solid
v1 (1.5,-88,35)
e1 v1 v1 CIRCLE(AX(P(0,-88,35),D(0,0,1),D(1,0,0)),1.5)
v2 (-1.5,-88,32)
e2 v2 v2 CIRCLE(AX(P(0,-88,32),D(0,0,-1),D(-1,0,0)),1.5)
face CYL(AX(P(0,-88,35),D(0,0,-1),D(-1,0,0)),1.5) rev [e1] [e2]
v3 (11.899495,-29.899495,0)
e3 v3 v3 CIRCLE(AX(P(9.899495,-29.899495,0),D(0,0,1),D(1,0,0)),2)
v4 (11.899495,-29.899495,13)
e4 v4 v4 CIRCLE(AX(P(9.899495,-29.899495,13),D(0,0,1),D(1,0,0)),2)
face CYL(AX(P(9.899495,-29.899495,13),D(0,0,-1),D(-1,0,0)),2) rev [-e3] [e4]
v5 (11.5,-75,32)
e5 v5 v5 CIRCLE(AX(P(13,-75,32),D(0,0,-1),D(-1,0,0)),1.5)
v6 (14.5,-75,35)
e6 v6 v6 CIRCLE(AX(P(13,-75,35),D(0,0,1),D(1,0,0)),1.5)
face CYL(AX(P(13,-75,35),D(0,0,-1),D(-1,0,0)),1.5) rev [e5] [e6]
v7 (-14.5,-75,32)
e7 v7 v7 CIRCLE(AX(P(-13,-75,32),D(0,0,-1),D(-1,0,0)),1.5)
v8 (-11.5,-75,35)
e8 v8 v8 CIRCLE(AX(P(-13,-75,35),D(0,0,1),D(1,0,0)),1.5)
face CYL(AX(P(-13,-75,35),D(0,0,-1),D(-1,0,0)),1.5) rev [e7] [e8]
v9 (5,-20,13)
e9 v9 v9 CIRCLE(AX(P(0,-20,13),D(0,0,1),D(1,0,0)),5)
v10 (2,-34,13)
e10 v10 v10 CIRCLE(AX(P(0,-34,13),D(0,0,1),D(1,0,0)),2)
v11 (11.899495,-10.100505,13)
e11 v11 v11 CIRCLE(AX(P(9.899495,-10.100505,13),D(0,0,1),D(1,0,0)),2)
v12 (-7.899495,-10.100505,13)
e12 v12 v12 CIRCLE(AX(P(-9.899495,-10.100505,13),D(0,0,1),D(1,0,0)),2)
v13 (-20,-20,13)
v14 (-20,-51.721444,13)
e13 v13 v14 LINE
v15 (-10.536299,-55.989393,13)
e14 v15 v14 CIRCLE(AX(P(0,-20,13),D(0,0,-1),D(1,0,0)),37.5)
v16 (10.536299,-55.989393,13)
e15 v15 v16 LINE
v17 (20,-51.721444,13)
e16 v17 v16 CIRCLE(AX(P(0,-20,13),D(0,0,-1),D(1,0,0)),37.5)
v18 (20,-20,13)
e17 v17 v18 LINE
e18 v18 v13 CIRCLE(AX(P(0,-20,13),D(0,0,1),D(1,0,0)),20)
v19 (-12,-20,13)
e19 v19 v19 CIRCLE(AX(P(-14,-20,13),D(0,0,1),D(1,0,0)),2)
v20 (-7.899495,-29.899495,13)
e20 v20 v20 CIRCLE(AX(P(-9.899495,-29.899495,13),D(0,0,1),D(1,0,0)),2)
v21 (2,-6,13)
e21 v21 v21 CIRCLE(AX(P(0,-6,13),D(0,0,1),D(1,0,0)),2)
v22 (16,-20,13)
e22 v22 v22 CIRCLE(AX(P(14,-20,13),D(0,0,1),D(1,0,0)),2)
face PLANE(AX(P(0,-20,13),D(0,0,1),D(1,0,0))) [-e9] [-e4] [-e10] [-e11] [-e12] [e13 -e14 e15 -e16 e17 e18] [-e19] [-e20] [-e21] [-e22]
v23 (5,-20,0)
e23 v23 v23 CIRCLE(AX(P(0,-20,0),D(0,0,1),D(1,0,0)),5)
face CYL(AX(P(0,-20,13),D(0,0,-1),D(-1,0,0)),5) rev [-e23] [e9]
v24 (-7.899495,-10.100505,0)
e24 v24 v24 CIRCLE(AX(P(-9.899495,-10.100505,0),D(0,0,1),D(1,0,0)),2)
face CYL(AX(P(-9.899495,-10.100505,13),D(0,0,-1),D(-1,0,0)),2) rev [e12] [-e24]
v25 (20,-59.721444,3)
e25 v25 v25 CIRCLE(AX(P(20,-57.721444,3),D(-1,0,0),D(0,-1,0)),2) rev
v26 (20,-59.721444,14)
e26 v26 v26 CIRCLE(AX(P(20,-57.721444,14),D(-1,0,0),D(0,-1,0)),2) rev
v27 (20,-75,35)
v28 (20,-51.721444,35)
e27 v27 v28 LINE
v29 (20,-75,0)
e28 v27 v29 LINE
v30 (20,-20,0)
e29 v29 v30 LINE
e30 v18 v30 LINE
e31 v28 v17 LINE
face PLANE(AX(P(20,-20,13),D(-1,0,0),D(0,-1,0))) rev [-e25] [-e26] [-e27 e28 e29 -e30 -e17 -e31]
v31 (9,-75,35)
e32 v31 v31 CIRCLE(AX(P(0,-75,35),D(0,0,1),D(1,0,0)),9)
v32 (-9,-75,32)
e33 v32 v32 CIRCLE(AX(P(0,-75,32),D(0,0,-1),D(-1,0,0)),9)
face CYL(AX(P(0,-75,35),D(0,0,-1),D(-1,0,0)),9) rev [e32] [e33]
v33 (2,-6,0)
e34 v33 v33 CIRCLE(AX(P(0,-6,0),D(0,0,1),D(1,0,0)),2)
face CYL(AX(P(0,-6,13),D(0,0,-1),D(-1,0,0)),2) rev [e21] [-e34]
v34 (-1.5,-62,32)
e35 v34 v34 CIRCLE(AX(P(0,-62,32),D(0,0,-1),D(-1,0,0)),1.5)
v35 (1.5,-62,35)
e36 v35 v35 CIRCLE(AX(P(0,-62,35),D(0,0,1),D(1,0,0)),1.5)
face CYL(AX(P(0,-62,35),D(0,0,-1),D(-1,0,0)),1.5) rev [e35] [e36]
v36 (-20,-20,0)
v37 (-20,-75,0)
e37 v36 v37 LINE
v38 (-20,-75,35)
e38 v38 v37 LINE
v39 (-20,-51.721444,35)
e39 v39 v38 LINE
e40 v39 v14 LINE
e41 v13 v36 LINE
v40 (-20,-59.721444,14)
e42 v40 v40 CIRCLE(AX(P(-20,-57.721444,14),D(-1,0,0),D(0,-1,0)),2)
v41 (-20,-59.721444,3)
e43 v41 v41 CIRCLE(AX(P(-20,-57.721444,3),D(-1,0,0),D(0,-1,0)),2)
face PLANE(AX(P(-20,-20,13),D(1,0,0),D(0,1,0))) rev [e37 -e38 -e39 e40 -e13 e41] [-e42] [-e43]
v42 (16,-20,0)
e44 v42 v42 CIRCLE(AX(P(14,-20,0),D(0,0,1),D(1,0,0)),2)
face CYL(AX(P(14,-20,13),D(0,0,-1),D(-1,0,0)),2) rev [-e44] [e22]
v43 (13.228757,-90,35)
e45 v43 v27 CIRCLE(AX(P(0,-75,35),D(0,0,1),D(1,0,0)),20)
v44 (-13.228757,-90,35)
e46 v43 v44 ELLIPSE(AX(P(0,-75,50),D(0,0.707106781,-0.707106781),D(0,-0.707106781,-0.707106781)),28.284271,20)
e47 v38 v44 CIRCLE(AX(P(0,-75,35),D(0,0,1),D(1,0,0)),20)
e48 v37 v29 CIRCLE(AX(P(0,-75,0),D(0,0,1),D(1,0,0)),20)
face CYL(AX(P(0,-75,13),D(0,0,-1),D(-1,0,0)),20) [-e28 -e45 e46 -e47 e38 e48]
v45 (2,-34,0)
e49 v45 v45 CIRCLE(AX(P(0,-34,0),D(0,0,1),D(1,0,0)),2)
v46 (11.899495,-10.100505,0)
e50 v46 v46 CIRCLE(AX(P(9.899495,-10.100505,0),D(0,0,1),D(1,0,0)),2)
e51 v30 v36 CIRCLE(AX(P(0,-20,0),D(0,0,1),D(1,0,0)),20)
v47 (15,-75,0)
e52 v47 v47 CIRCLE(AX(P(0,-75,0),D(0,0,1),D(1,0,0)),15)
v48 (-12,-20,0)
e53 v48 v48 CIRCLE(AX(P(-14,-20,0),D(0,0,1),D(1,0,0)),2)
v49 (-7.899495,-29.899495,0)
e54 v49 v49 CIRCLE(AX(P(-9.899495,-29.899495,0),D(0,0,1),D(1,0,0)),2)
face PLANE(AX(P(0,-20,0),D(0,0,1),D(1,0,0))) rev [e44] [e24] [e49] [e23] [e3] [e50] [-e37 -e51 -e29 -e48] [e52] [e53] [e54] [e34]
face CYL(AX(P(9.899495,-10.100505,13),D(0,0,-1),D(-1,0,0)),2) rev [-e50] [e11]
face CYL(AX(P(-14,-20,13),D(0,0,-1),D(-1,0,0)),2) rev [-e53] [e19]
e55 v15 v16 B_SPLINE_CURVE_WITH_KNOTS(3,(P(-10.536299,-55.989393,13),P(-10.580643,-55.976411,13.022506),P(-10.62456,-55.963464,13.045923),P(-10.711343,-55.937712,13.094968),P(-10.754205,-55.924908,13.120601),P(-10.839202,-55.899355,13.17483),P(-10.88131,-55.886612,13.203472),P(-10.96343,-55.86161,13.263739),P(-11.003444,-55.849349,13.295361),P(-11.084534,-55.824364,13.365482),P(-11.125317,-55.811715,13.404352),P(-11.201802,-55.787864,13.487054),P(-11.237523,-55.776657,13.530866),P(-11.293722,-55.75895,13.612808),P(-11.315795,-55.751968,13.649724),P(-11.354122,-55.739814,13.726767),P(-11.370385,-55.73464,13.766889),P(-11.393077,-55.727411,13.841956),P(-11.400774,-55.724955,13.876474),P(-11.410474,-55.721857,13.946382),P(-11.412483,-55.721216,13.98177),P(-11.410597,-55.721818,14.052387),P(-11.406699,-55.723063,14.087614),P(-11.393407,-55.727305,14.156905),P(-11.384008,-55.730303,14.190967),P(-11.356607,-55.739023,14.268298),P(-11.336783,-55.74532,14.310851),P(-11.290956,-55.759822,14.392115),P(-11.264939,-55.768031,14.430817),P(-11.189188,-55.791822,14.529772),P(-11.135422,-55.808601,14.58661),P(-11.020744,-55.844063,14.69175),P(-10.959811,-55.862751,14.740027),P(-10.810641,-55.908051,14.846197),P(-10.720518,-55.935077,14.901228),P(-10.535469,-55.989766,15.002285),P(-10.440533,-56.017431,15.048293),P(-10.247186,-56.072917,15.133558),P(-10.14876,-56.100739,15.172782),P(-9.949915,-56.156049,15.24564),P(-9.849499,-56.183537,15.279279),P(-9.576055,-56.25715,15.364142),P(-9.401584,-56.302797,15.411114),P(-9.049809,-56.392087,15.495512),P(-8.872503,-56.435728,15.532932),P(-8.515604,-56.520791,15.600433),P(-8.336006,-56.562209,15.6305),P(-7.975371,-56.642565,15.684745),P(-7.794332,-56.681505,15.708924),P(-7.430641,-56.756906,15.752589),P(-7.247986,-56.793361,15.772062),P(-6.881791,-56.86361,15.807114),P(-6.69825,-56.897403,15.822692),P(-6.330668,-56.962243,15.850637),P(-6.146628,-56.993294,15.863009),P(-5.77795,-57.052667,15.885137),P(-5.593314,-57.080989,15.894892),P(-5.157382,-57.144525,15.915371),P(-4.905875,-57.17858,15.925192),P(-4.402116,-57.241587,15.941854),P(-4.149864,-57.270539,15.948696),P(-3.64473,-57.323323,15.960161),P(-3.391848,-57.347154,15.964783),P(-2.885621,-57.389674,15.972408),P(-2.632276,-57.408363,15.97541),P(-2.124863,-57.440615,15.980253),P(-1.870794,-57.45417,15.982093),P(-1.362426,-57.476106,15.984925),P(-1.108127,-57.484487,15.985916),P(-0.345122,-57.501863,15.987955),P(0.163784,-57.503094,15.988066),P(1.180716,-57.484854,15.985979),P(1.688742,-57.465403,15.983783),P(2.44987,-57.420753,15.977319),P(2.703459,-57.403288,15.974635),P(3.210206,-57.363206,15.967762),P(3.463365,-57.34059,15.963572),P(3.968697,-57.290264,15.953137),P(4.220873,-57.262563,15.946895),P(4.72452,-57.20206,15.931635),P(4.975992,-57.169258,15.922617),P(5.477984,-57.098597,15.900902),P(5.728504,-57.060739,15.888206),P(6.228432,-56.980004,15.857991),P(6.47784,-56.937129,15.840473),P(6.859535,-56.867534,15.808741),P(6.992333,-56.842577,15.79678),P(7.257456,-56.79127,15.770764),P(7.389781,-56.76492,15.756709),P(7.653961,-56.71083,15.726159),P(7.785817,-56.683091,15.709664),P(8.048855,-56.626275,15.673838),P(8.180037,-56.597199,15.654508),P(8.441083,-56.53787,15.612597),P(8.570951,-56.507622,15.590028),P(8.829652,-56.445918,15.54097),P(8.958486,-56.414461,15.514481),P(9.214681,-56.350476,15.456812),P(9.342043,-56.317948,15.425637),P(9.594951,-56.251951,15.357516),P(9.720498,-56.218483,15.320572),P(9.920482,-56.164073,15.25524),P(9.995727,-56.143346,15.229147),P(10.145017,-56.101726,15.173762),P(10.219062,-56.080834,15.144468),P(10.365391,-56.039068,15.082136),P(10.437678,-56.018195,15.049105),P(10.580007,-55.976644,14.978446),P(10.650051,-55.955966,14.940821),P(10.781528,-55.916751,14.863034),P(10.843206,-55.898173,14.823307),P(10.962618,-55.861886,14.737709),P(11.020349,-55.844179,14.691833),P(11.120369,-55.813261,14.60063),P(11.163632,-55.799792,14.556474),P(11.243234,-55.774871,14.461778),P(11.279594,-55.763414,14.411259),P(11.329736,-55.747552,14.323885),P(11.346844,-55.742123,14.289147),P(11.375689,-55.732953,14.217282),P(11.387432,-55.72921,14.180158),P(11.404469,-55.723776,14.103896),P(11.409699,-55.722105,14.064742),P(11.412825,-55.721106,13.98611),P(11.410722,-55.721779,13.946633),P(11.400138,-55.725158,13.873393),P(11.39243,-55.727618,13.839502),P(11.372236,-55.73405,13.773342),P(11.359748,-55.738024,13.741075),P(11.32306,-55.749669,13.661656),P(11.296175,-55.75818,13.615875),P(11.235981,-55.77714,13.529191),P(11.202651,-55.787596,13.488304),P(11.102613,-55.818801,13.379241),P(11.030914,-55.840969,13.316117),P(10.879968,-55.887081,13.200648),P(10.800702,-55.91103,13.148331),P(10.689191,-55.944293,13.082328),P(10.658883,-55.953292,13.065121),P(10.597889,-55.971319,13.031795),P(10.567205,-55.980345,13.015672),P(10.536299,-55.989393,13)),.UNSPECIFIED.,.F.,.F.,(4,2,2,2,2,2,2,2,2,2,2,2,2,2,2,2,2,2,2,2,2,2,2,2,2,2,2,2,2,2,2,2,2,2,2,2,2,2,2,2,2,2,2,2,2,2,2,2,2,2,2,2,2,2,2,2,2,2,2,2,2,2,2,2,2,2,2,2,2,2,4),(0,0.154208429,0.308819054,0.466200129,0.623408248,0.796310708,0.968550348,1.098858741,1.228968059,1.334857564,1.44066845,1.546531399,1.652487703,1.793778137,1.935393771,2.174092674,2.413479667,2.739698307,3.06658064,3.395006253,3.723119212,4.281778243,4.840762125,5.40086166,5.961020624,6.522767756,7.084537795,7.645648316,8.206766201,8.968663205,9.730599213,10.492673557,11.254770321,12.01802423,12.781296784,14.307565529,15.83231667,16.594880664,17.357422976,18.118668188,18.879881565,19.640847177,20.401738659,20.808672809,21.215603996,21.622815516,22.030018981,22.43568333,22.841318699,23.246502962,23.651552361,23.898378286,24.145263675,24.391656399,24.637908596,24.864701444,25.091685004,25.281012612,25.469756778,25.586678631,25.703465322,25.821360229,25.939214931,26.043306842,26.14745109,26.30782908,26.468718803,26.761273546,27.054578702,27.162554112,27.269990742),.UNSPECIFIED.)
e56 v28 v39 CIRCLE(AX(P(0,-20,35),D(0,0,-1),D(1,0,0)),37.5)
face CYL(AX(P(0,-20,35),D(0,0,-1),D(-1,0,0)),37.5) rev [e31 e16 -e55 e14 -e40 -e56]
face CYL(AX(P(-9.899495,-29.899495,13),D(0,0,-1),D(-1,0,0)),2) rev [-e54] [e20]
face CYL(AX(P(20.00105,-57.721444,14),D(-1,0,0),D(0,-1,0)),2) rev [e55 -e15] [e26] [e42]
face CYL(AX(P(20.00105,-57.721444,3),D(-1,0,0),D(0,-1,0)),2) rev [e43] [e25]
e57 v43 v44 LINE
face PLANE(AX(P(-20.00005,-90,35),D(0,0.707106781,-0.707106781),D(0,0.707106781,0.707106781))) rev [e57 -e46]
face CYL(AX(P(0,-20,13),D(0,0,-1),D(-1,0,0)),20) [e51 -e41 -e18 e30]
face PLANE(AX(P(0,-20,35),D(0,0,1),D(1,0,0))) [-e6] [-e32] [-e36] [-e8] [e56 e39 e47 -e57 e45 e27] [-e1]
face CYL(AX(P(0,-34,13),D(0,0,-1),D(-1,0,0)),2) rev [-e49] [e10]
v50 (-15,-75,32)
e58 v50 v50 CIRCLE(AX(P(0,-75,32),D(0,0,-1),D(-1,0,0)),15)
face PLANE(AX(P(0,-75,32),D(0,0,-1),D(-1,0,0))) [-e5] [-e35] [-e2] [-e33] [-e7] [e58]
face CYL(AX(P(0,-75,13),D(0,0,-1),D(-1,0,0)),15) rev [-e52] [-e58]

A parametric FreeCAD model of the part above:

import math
import FreeCAD as App
import Part
import Sketcher

V = App.Vector
Q = App.Units.Quantity


def add_polygon(sketch, points):
    """Adds a closed chain of lines whose ends are joined by coincident constraints."""
    first, n = sketch.GeometryCount, len(points)
    for a, b in zip(points, points[1:] + points[:1]):
        sketch.addGeometry(Part.LineSegment(App.Vector(*a, 0), App.Vector(*b, 0)), False)
    for i in range(n):
        sketch.addConstraint(Sketcher.Constraint("Coincident", first + i, 2, first + (i + 1) % n, 1))

doc = App.newDocument("Part")
params = doc.addObject("Spreadsheet::Sheet", "Params")
for row, (alias, value) in enumerate([
    ("sketch1_diameter", "30 mm"),
    ("sketch1_diameter2", "4 mm"),
    ("sketch1_diameter3", "10 mm"),
    ("sketch1_radius", "20 mm"),
    ("sketch1_height", "55 mm"),
    ("pad1_length", "13 mm"),
    ("sketch2_diameter", "3 mm"),
    ("sketch2_diameter2", "18 mm"),
    ("sketch2_radius", "20 mm"),
    ("sketch2_radius2", "37.5 mm"),
    ("pad2_length", "22 mm"),
    ("sketch3_diameter", "30 mm"),
    ("pocket1_length", "19 mm"),
    ("sketch4_width", "5 mm"),
    ("sketch5_diameter", "4 mm"),
    ("sketch6_diameter", "4 mm"),
], start=1):
    params.set(f"A{row}", alias)
    params.set(f"B{row}", "=" + value)
    params.setAlias(f"B{row}", alias)

body = doc.addObject("PartDesign::Body", "Body")

sketch1 = body.newObject("Sketcher::SketchObject", "Sketch")
sketch1.AttachmentSupport = (doc.getObject("XY_Plane"), [""])
sketch1.MapMode = "FlatFace"
sketch1.addGeometry(Part.LineSegment(V(20, -75, 0), V(20, -20, 0)), False)
sketch1.addGeometry(Part.ArcOfCircle(Part.Circle(V(0, -20, 0), V(0, 0, 1), 20), math.radians(0), math.radians(180)), False)
sketch1.addGeometry(Part.LineSegment(V(-20, -20, 0), V(-20, -75, 0)), False)
sketch1.addGeometry(Part.ArcOfCircle(Part.Circle(V(0, -75, 0), V(0, 0, 1), 20), math.radians(180), math.radians(360)), False)
sketch1.addGeometry(Part.Circle(V(0, -75, 0), V(0, 0, 1), 15), False)
sketch1.addGeometry(Part.Circle(V(9.9, -29.9, 0), V(0, 0, 1), 2), False)
sketch1.addGeometry(Part.Circle(V(14, -20, 0), V(0, 0, 1), 2), False)
sketch1.addGeometry(Part.Circle(V(9.9, -10.1, 0), V(0, 0, 1), 2), False)
sketch1.addGeometry(Part.Circle(V(0, -34, 0), V(0, 0, 1), 2), False)
sketch1.addGeometry(Part.Circle(V(-9.9, -29.9, 0), V(0, 0, 1), 2), False)
sketch1.addGeometry(Part.Circle(V(0, -20, 0), V(0, 0, 1), 5), False)
sketch1.addGeometry(Part.Circle(V(0, -6, 0), V(0, 0, 1), 2), False)
sketch1.addGeometry(Part.Circle(V(-14, -20, 0), V(0, 0, 1), 2), False)
sketch1.addGeometry(Part.Circle(V(-9.9, -10.1, 0), V(0, 0, 1), 2), False)
sketch1.addConstraint(Sketcher.Constraint("Tangent", 0, 2, 1, 1))
sketch1.addConstraint(Sketcher.Constraint("Tangent", 1, 2, 2, 1))
sketch1.addConstraint(Sketcher.Constraint("Tangent", 2, 2, 3, 1))
sketch1.addConstraint(Sketcher.Constraint("Tangent", 3, 2, 0, 1))
sketch1.addConstraint(Sketcher.Constraint("Vertical", 0))
sketch1.addConstraint(Sketcher.Constraint("Vertical", 2))
sketch1.addConstraint(Sketcher.Constraint("Coincident", 4, 3, 3, 3))
sketch1.addConstraint(Sketcher.Constraint("Coincident", 10, 3, 1, 3))
sketch1.addConstraint(Sketcher.Constraint("Equal", 5, 6))
sketch1.addConstraint(Sketcher.Constraint("Equal", 6, 7))
sketch1.addConstraint(Sketcher.Constraint("Equal", 7, 8))
sketch1.addConstraint(Sketcher.Constraint("Equal", 8, 9))
sketch1.addConstraint(Sketcher.Constraint("Equal", 9, 11))
sketch1.addConstraint(Sketcher.Constraint("Equal", 11, 12))
sketch1.addConstraint(Sketcher.Constraint("Equal", 12, 13))
sketch1.addConstraint(Sketcher.Constraint("Symmetric", 5, 3, 9, 3, -2))
sketch1.addConstraint(Sketcher.Constraint("Symmetric", 6, 3, 12, 3, -2))
sketch1.addConstraint(Sketcher.Constraint("Symmetric", 7, 3, 13, 3, -2))
sketch1.addConstraint(Sketcher.Constraint("PointOnObject", 1, 3, -2))
sketch1.addConstraint(Sketcher.Constraint("PointOnObject", 8, 3, -2))
sketch1.addConstraint(Sketcher.Constraint("PointOnObject", 11, 3, -2))
sketch1.addConstraint(Sketcher.Constraint("Horizontal", 1, 3, 6, 3))
sketch1.addConstraint(Sketcher.Constraint("Vertical", 5, 3, 7, 3))
sketch1.addConstraint(Sketcher.Constraint("Diameter", 4, Q("30 mm")))
sketch1.addConstraint(Sketcher.Constraint("Diameter", 5, Q("4 mm")))
sketch1.addConstraint(Sketcher.Constraint("Diameter", 10, Q("10 mm")))
sketch1.addConstraint(Sketcher.Constraint("Radius", 1, Q("20 mm")))
sketch1.addConstraint(Sketcher.Constraint("DistanceY", 0, 1, 0, 2, Q("55 mm")))
sketch1.addConstraint(Sketcher.Constraint("DistanceY", 1, 3, -1, 1, Q("20 mm")))
sketch1.addConstraint(Sketcher.Constraint("DistanceX", -1, 1, 6, 3, Q("14 mm")))
sketch1.addConstraint(Sketcher.Constraint("DistanceY", 8, 3, -1, 1, Q("34 mm")))
sketch1.addConstraint(Sketcher.Constraint("DistanceY", 11, 3, -1, 1, Q("6 mm")))
sketch1.addConstraint(Sketcher.Constraint("DistanceY", 5, 3, 7, 3, Q("19.79899 mm")))
sketch1.addConstraint(Sketcher.Constraint("DistanceX", 9, 3, 5, 3, Q("19.79899 mm")))
sketch1.addConstraint(Sketcher.Constraint("DistanceY", 5, 3, -1, 1, Q("29.899495 mm")))
sketch1.setExpression("Constraints[23]", "Params.sketch1_diameter")
sketch1.setExpression("Constraints[24]", "Params.sketch1_diameter2")
sketch1.setExpression("Constraints[25]", "Params.sketch1_diameter3")
sketch1.setExpression("Constraints[26]", "Params.sketch1_radius")
sketch1.setExpression("Constraints[27]", "Params.sketch1_height")
pad1 = body.newObject("PartDesign::Pad", "Pad")
pad1.Profile = sketch1
pad1.setExpression("Length", "Params.pad1_length")

sketch2 = body.newObject("Sketcher::SketchObject", "Sketch001")
sketch2.AttachmentSupport = (doc.getObject("XY_Plane"), [""])
sketch2.MapMode = "FlatFace"
sketch2.AttachmentOffset = App.Placement(V(0, 0, 13), App.Rotation())
sketch2.addGeometry(Part.LineSegment(V(-20, -51.7, 0), V(-20, -75, 0)), False)
sketch2.addGeometry(Part.ArcOfCircle(Part.Circle(V(0, -75, 0), V(0, 0, 1), 20), math.radians(180), math.radians(360)), False)
sketch2.addGeometry(Part.LineSegment(V(20, -75, 0), V(20, -51.7, 0)), False)
sketch2.addGeometry(Part.ArcOfCircle(Part.Circle(V(0, -20, 0), V(0, 0, 1), 37.5), math.radians(-122), math.radians(-58)), False)
sketch2.addGeometry(Part.Circle(V(0, -88, 0), V(0, 0, 1), 1.5), False)
sketch2.addGeometry(Part.Circle(V(13, -75, 0), V(0, 0, 1), 1.5), False)
sketch2.addGeometry(Part.Circle(V(0, -75, 0), V(0, 0, 1), 9), False)
sketch2.addGeometry(Part.Circle(V(-13, -75, 0), V(0, 0, 1), 1.5), False)
sketch2.addGeometry(Part.Circle(V(0, -62, 0), V(0, 0, 1), 1.5), False)
sketch2.addConstraint(Sketcher.Constraint("Tangent", 0, 2, 1, 1))
sketch2.addConstraint(Sketcher.Constraint("Tangent", 1, 2, 2, 1))
sketch2.addConstraint(Sketcher.Constraint("Coincident", 2, 2, 3, 2))
sketch2.addConstraint(Sketcher.Constraint("Coincident", 3, 1, 0, 1))
sketch2.addConstraint(Sketcher.Constraint("Vertical", 0))
sketch2.addConstraint(Sketcher.Constraint("Vertical", 2))
sketch2.addConstraint(Sketcher.Constraint("Coincident", 6, 3, 1, 3))
sketch2.addConstraint(Sketcher.Constraint("Equal", 4, 5))
sketch2.addConstraint(Sketcher.Constraint("Equal", 5, 7))
sketch2.addConstraint(Sketcher.Constraint("Equal", 7, 8))
sketch2.addConstraint(Sketcher.Constraint("Symmetric", 5, 3, 7, 3, -2))
sketch2.addConstraint(Sketcher.Constraint("Symmetric", 2, 2, 3, 1, -2))
sketch2.addConstraint(Sketcher.Constraint("PointOnObject", 4, 3, -2))
sketch2.addConstraint(Sketcher.Constraint("PointOnObject", 8, 3, -2))
sketch2.addConstraint(Sketcher.Constraint("Horizontal", 1, 3, 5, 3))
sketch2.addConstraint(Sketcher.Constraint("Diameter", 4, Q("3 mm")))
sketch2.addConstraint(Sketcher.Constraint("Diameter", 6, Q("18 mm")))
sketch2.addConstraint(Sketcher.Constraint("Radius", 1, Q("20 mm")))
sketch2.addConstraint(Sketcher.Constraint("Radius", 3, Q("37.5 mm")))
sketch2.addConstraint(Sketcher.Constraint("DistanceY", 1, 3, -1, 1, Q("75 mm")))
sketch2.addConstraint(Sketcher.Constraint("DistanceY", 3, 3, -1, 1, Q("20 mm")))
sketch2.addConstraint(Sketcher.Constraint("DistanceY", 4, 3, -1, 1, Q("88 mm")))
sketch2.addConstraint(Sketcher.Constraint("DistanceX", -1, 1, 5, 3, Q("13 mm")))
sketch2.addConstraint(Sketcher.Constraint("DistanceY", 8, 3, -1, 1, Q("62 mm")))
sketch2.setExpression("Constraints[15]", "Params.sketch2_diameter")
sketch2.setExpression("Constraints[16]", "Params.sketch2_diameter2")
sketch2.setExpression("Constraints[17]", "Params.sketch2_radius")
sketch2.setExpression("Constraints[18]", "Params.sketch2_radius2")
pad2 = body.newObject("PartDesign::Pad", "Pad001")
pad2.Profile = sketch2
pad2.setExpression("Length", "Params.pad2_length")

sketch3 = body.newObject("Sketcher::SketchObject", "Sketch002")
sketch3.AttachmentSupport = (doc.getObject("XY_Plane"), [""])
sketch3.MapMode = "FlatFace"
sketch3.AttachmentOffset = App.Placement(V(0, 0, 13), App.Rotation())
sketch3.addGeometry(Part.Circle(V(0, -75, 0), V(0, 0, 1), 15), False)
sketch3.addConstraint(Sketcher.Constraint("PointOnObject", 0, 3, -2))
sketch3.addConstraint(Sketcher.Constraint("Diameter", 0, Q("30 mm")))
sketch3.addConstraint(Sketcher.Constraint("DistanceY", 0, 3, -1, 1, Q("75 mm")))
sketch3.setExpression("Constraints[1]", "Params.sketch3_diameter")
pocket1 = body.newObject("PartDesign::Pocket", "Pocket")
pocket1.Profile = sketch3
pocket1.setExpression("Length", "Params.pocket1_length")
pocket1.Reversed = True

sketch4 = body.newObject("Sketcher::SketchObject", "Sketch003")
sketch4.AttachmentSupport = (doc.getObject("YZ_Plane"), [""])
sketch4.MapMode = "FlatFace"
add_polygon(sketch4, [(-95, 35), (-95, 30), (-90, 35)])
sketch4.addConstraint(Sketcher.Constraint("Vertical", 0))
sketch4.addConstraint(Sketcher.Constraint("Horizontal", 2))
sketch4.addConstraint(Sketcher.Constraint("Equal", 2, 0))
sketch4.addConstraint(Sketcher.Constraint("DistanceX", 2, 2, 2, 1, Q("5 mm")))
sketch4.addConstraint(Sketcher.Constraint("DistanceX", 0, 2, -1, 1, Q("95 mm")))
sketch4.addConstraint(Sketcher.Constraint("DistanceY", -1, 1, 0, 2, Q("30 mm")))
sketch4.setExpression("Constraints[6]", "Params.sketch4_width")
pocket2 = body.newObject("PartDesign::Pocket", "Pocket001")
pocket2.Profile = sketch4
pocket2.Type = "ThroughAll"
pocket2.Midplane = True

sketch5 = body.newObject("Sketcher::SketchObject", "Sketch004")
sketch5.AttachmentSupport = (doc.getObject("YZ_Plane"), [""])
sketch5.MapMode = "FlatFace"
sketch5.AttachmentOffset = App.Placement(V(0, 0, -20), App.Rotation())
sketch5.addGeometry(Part.Circle(V(-57.7, 14, 0), V(0, 0, 1), 2), False)
sketch5.addConstraint(Sketcher.Constraint("Diameter", 0, Q("4 mm")))
sketch5.addConstraint(Sketcher.Constraint("DistanceY", -1, 1, 0, 3, Q("14 mm")))
sketch5.addConstraint(Sketcher.Constraint("DistanceX", 0, 3, -1, 1, Q("57.721444 mm")))
sketch5.setExpression("Constraints[0]", "Params.sketch5_diameter")
pocket3 = body.newObject("PartDesign::Pocket", "Pocket002")
pocket3.Profile = sketch5
pocket3.Type = "UpToFirst"
pocket3.Reversed = True

sketch6 = body.newObject("Sketcher::SketchObject", "Sketch005")
sketch6.AttachmentSupport = (doc.getObject("YZ_Plane"), [""])
sketch6.MapMode = "FlatFace"
sketch6.AttachmentOffset = App.Placement(V(0, 0, -20), App.Rotation())
sketch6.addGeometry(Part.Circle(V(-57.7, 3, 0), V(0, 0, 1), 2), False)
sketch6.addConstraint(Sketcher.Constraint("Diameter", 0, Q("4 mm")))
sketch6.addConstraint(Sketcher.Constraint("DistanceY", -1, 1, 0, 3, Q("3 mm")))
sketch6.addConstraint(Sketcher.Constraint("DistanceX", 0, 3, -1, 1, Q("57.721444 mm")))
sketch6.setExpression("Constraints[0]", "Params.sketch6_diameter")
pocket4 = body.newObject("PartDesign::Pocket", "Pocket003")
pocket4.Profile = sketch6
pocket4.Type = "UpToFirst"
pocket4.Reversed = True

doc.recompute()
